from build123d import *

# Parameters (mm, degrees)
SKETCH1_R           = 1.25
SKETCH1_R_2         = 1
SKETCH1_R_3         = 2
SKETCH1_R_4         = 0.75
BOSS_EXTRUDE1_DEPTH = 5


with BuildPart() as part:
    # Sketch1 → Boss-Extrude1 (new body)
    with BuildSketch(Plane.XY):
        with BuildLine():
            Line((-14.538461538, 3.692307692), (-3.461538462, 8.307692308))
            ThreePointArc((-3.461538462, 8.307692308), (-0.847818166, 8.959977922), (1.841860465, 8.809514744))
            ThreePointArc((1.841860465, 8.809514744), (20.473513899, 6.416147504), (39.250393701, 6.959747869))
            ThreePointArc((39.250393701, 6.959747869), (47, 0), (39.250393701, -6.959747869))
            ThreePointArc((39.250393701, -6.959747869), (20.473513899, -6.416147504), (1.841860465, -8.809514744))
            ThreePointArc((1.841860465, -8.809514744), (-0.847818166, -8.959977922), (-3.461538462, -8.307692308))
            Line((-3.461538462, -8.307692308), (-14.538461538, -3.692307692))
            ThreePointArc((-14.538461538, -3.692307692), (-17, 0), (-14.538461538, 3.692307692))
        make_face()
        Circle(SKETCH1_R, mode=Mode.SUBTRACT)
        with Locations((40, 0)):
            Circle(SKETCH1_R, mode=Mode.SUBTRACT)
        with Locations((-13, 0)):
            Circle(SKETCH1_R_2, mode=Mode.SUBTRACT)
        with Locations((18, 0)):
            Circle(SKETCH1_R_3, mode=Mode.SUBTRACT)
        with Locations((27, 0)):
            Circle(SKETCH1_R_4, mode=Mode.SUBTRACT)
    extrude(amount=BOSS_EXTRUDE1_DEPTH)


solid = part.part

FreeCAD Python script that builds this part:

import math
import FreeCAD as App
import Part
import Sketcher
from FreeCAD import Vector
Q = App.Units.Quantity

doc = App.newDocument("Part")
body = doc.addObject("PartDesign::Body", "Body")

sketch1 = body.newObject("Sketcher::SketchObject", "Sketch")
sketch1.AttachmentSupport = (doc.getObject("XY_Plane"), [""])
sketch1.MapMode = "FlatFace"
sketch1.addGeometry(Part.LineSegment(Vector(-3.461538, 8.307692, 0), Vector(-14.538462, 3.692308, 0)), False)
sketch1.addGeometry(Part.ArcOfCircle(Part.Circle(Vector(-13, 0, 0), Vector(0, 0, 1), 4), math.radians(112.619865), math.radians(247.380135)), False)
sketch1.addGeometry(Part.LineSegment(Vector(-14.538462, -3.692308, 0), Vector(-3.461538, -8.307692, 0)), False)
sketch1.addGeometry(Part.ArcOfCircle(Part.Circle(Vector(0, 0, 0), Vector(0, 0, 1), 9), math.radians(-112.619865), math.radians(-78.190921)), False)
sketch1.addGeometry(Part.ArcOfCircle(Part.Circle(Vector(26.4, -126.269711, 0), Vector(0, 0, 1), 120), math.radians(83.852601), math.radians(101.809079)), False)
sketch1.addGeometry(Part.ArcOfCircle(Part.Circle(Vector(40, 0, 0), Vector(0, 0, 1), 7), math.radians(-96.147399), math.radians(96.147399)), False)
sketch1.addGeometry(Part.ArcOfCircle(Part.Circle(Vector(26.4, 126.269711, 0), Vector(0, 0, 1), 120), math.radians(-101.809079), math.radians(-83.852601)), False)
sketch1.addGeometry(Part.ArcOfCircle(Part.Circle(Vector(0, 0, 0), Vector(0, 0, 1), 9), math.radians(78.190921), math.radians(112.619865)), False)
sketch1.addGeometry(Part.Circle(Vector(40, 0, 0), Vector(0, 0, 1), 1.25), False)
sketch1.addGeometry(Part.Circle(Vector(27, 0, 0), Vector(0, 0, 1), 0.75), False)
sketch1.addGeometry(Part.Circle(Vector(18, 0, 0), Vector(0, 0, 1), 2), False)
sketch1.addGeometry(Part.Circle(Vector(0, 0, 0), Vector(0, 0, 1), 1.25), False)
sketch1.addGeometry(Part.Circle(Vector(-13, 0, 0), Vector(0, 0, 1), 1), False)
sketch1.addConstraint(Sketcher.Constraint("Tangent", 0, 2, 1, 1))
sketch1.addConstraint(Sketcher.Constraint("Tangent", 1, 2, 2, 1))
sketch1.addConstraint(Sketcher.Constraint("Tangent", 2, 2, 3, 1))
sketch1.addConstraint(Sketcher.Constraint("Tangent", 3, 2, 4, 2))
sketch1.addConstraint(Sketcher.Constraint("Tangent", 4, 1, 5, 1))
sketch1.addConstraint(Sketcher.Constraint("Tangent", 5, 2, 6, 2))
sketch1.addConstraint(Sketcher.Constraint("Tangent", 6, 1, 7, 1))
sketch1.addConstraint(Sketcher.Constraint("Tangent", 7, 2, 0, 1))
sketch1.addConstraint(Sketcher.Constraint("Coincident", 3, 3, -1, 1))
sketch1.addConstraint(Sketcher.Constraint("Coincident", 7, 3, -1, 1))
sketch1.addConstraint(Sketcher.Constraint("Coincident", 11, 3, -1, 1))
sketch1.addConstraint(Sketcher.Constraint("Coincident", 8, 3, 5, 3))
sketch1.addConstraint(Sketcher.Constraint("Coincident", 12, 3, 1, 3))
sketch1.addConstraint(Sketcher.Constraint("Equal", 4, 6))
sketch1.addConstraint(Sketcher.Constraint("Equal", 3, 7))
sketch1.addConstraint(Sketcher.Constraint("Equal", 8, 11))
sketch1.addConstraint(Sketcher.Constraint("PointOnObject", 1, 3, -1))
sketch1.addConstraint(Sketcher.Constraint("PointOnObject", 5, 3, -1))
sketch1.addConstraint(Sketcher.Constraint("PointOnObject", 9, 3, -1))
sketch1.addConstraint(Sketcher.Constraint("PointOnObject", 10, 3, -1))
sketch1.addConstraint(Sketcher.Constraint("Diameter", 10, Q("4 mm")))
sketch1.addConstraint(Sketcher.Constraint("Diameter", 12, Q("2 mm")))
sketch1.addConstraint(Sketcher.Constraint("Radius", 1, Q("4 mm")))
sketch1.addConstraint(Sketcher.Constraint("Radius", 3, Q("9 mm")))
sketch1.addConstraint(Sketcher.Constraint("Radius", 4, Q("120 mm")))
sketch1.addConstraint(Sketcher.Constraint("Radius", 5, Q("7 mm")))
sketch1.addConstraint(Sketcher.Constraint("Diameter", 8, Q("2.5 mm")))
sketch1.addConstraint(Sketcher.Constraint("Diameter", 9, Q("1.5 mm")))
sketch1.addConstraint(Sketcher.Constraint("Distance", 0, Q("12 mm")))
sketch1.addConstraint(Sketcher.Constraint("DistanceX", -1, 1, 5, 3, Q("40 mm")))
sketch1.addConstraint(Sketcher.Constraint("DistanceX", -1, 1, 9, 3, Q("27 mm")))
sketch1.addConstraint(Sketcher.Constraint("DistanceX", -1, 1, 10, 3, Q("18 mm")))
pad1 = body.newObject("PartDesign::Pad", "Pad")
pad1.Profile = sketch1
pad1.Length = 5

doc.recompute()
